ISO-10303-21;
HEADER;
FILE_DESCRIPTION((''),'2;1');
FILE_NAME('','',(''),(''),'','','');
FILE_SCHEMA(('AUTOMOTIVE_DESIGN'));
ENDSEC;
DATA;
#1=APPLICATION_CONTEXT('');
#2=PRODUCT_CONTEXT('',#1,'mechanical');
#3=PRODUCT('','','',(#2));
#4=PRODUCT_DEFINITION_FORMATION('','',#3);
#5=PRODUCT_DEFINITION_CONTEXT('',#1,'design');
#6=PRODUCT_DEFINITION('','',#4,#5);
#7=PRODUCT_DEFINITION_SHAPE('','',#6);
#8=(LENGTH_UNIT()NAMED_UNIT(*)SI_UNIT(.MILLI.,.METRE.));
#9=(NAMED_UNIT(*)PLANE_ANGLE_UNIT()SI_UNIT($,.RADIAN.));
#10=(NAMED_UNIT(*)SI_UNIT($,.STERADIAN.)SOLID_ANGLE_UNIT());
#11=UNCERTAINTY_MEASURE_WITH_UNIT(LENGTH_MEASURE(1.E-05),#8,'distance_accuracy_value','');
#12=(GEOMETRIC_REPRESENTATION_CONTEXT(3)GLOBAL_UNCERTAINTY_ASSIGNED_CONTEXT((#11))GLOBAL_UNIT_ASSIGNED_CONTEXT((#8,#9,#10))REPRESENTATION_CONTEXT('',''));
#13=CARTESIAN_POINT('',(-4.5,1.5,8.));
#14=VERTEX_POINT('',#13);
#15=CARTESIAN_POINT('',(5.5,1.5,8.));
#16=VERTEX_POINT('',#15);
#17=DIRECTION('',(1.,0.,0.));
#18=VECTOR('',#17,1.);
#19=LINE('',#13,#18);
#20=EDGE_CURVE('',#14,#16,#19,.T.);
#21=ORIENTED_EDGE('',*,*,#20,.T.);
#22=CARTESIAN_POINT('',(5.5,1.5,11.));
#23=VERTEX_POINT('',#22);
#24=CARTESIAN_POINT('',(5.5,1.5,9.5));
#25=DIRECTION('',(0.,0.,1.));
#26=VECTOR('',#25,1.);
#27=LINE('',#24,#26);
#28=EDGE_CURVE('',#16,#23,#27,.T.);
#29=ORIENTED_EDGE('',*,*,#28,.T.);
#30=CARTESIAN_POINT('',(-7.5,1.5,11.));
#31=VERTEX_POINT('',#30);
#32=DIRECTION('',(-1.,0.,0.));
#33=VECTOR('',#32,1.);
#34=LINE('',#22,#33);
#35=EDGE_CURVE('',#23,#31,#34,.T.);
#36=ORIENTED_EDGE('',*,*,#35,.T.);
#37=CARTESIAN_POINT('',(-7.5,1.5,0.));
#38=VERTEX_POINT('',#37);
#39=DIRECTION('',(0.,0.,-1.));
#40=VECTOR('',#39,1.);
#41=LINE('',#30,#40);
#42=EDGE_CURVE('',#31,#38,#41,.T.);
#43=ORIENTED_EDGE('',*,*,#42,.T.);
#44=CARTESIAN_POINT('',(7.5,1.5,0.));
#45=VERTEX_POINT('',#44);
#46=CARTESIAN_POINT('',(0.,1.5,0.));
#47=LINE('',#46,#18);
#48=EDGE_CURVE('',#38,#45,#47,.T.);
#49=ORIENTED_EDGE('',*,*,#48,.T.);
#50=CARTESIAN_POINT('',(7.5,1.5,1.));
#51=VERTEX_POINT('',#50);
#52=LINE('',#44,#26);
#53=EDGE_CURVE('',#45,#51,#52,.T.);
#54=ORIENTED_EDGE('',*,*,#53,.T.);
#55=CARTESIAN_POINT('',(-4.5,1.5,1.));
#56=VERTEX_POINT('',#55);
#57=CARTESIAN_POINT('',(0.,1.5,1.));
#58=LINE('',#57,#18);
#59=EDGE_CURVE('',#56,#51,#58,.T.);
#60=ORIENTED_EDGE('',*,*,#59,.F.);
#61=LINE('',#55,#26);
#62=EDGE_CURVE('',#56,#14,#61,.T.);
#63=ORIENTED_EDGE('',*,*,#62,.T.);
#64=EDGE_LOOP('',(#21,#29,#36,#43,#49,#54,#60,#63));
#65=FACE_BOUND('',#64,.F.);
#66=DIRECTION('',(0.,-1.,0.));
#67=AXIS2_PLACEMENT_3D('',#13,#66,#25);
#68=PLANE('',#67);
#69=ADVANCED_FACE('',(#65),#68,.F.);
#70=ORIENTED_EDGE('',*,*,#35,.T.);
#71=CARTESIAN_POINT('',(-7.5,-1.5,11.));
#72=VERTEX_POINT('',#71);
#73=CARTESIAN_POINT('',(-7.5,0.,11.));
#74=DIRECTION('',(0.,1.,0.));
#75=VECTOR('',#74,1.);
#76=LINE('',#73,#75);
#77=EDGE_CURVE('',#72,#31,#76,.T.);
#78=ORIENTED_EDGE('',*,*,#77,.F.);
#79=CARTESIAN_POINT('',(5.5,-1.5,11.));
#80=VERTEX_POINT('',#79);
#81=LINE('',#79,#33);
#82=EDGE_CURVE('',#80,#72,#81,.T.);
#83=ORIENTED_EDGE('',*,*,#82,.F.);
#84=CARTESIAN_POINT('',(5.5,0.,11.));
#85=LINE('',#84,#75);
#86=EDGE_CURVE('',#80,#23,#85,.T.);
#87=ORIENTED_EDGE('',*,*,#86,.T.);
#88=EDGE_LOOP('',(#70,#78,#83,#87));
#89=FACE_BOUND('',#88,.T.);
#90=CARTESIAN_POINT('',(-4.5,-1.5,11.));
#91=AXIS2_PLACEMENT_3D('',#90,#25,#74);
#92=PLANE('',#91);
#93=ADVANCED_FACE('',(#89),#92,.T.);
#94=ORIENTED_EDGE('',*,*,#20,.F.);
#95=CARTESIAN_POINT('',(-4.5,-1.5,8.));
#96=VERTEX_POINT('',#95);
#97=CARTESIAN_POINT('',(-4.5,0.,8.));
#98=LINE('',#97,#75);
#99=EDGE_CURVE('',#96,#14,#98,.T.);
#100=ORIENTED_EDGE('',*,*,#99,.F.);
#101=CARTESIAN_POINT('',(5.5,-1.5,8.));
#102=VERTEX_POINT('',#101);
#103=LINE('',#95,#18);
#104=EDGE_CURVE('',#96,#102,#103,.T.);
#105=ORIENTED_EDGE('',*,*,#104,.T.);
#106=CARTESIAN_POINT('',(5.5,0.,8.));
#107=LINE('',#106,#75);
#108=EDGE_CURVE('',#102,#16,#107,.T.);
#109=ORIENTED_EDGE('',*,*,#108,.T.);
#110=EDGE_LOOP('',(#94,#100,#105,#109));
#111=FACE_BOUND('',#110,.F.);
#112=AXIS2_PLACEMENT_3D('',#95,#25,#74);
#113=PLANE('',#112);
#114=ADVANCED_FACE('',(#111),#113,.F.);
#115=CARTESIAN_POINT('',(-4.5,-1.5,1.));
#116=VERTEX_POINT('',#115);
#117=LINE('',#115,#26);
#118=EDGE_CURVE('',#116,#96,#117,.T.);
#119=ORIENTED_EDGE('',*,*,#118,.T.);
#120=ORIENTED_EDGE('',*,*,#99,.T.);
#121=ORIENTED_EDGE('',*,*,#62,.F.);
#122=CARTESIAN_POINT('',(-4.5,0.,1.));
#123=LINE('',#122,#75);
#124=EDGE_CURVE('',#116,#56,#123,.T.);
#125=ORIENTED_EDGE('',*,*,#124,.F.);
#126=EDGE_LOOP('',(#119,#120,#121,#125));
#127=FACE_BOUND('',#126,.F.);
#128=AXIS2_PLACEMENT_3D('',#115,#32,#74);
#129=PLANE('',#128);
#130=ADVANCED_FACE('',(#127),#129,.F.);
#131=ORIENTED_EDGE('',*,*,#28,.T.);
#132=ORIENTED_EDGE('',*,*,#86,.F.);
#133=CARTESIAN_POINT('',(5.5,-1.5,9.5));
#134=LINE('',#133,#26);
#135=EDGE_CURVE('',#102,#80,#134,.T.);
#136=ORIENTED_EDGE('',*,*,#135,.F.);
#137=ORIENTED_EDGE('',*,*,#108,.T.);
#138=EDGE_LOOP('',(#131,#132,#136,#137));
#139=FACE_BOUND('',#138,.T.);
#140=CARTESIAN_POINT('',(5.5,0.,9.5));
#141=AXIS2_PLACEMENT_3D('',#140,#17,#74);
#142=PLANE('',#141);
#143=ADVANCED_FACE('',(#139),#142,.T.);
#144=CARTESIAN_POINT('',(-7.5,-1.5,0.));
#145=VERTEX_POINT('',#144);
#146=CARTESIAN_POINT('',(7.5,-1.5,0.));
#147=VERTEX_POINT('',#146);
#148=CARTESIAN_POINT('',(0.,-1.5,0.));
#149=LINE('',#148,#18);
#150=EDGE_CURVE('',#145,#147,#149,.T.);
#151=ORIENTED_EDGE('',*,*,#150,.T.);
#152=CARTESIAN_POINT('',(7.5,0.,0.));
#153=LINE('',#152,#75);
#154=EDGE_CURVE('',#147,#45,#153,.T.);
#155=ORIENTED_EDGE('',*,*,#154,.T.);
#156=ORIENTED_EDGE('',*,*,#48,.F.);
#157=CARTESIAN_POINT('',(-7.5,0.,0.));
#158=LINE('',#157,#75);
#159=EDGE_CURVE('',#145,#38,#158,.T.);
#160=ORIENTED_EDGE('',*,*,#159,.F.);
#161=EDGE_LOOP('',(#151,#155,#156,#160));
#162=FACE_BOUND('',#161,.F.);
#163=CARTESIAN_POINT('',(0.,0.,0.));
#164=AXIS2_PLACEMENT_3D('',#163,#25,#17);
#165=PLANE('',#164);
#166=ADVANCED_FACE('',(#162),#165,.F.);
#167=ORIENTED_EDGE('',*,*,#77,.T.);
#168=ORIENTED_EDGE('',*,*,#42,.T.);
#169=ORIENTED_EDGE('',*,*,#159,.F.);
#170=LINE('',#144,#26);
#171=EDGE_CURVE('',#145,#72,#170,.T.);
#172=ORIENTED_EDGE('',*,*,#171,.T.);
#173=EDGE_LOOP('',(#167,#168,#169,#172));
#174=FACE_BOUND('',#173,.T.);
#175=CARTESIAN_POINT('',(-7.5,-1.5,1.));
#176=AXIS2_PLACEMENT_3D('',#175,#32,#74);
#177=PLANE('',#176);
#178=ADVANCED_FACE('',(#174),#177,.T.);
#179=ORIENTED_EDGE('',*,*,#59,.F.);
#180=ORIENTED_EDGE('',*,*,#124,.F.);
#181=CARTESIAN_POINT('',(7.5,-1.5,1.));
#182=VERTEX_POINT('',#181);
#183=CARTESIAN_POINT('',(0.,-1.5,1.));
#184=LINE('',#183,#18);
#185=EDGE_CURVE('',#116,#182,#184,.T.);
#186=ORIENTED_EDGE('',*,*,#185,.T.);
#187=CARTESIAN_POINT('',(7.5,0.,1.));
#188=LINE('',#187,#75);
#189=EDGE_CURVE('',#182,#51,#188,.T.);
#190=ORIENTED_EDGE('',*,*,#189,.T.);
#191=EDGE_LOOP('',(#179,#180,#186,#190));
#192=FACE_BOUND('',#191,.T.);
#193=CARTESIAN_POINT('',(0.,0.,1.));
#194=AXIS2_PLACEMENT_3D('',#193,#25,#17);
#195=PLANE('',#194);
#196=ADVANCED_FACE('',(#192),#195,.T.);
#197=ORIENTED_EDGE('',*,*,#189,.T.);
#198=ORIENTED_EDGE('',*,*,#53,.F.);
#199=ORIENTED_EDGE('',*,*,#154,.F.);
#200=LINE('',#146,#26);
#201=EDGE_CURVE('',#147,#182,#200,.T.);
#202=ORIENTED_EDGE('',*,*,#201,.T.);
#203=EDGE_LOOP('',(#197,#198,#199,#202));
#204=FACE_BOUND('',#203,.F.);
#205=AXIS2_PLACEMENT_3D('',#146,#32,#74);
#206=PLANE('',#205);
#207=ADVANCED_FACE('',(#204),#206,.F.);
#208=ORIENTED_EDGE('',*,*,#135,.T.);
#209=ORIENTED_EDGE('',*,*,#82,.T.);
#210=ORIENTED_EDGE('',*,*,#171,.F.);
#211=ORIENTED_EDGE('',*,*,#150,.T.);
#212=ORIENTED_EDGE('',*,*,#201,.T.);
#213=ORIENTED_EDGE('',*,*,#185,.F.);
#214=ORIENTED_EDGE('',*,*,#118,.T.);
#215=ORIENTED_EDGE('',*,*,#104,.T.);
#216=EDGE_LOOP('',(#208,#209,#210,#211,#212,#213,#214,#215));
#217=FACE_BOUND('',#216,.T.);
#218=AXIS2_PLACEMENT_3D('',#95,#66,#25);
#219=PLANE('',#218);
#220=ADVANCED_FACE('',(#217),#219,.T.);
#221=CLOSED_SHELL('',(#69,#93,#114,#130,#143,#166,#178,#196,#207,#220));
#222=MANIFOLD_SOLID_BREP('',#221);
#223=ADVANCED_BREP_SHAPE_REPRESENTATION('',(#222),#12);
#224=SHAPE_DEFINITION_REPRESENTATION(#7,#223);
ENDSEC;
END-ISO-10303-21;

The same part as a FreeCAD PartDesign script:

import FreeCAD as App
import Part
import Sketcher

V = App.Vector
Q = App.Units.Quantity


def add_polygon(sketch, points):
    """Adds a closed chain of lines whose ends are joined by coincident constraints."""
    first, n = sketch.GeometryCount, len(points)
    for a, b in zip(points, points[1:] + points[:1]):
        sketch.addGeometry(Part.LineSegment(App.Vector(*a, 0), App.Vector(*b, 0)), False)
    for i in range(n):
        sketch.addConstraint(Sketcher.Constraint("Coincident", first + i, 2, first + (i + 1) % n, 1))

doc = App.newDocument("Part")
body = doc.addObject("PartDesign::Body", "Body")

sketch1 = body.newObject("Sketcher::SketchObject", "Sketch")
sketch1.AttachmentSupport = (doc.getObject("XY_Plane"), [""])
sketch1.MapMode = "FlatFace"
add_polygon(sketch1, [(-7.5, 1.5), (-7.5, -1.5), (7.5, -1.5), (7.5, 1.5)])
sketch1.addConstraint(Sketcher.Constraint("Vertical", 0))
sketch1.addConstraint(Sketcher.Constraint("Horizontal", 1))
sketch1.addConstraint(Sketcher.Constraint("Vertical", 2))
sketch1.addConstraint(Sketcher.Constraint("Horizontal", 3))
sketch1.addConstraint(Sketcher.Constraint("Symmetric", 0, 2, 2, 2, -1, 1))
sketch1.addConstraint(Sketcher.Constraint("DistanceX", 1, 1, 1, 2, Q("15 mm")))
sketch1.addConstraint(Sketcher.Constraint("DistanceY", 0, 2, 0, 1, Q("3 mm")))
pad1 = body.newObject("PartDesign::Pad", "Pad")
pad1.Profile = sketch1
pad1.Length = 1

sketch2 = body.newObject("Sketcher::SketchObject", "Sketch001")
sketch2.AttachmentSupport = (doc.getObject("XY_Plane"), [""])
sketch2.MapMode = "FlatFace"
sketch2.AttachmentOffset = App.Placement(V(0, 0, 1), App.Rotation())
add_polygon(sketch2, [(-7.5, 1.5), (-7.5, -1.5), (-4.5, -1.5), (-4.5, 1.5)])
sketch2.addConstraint(Sketcher.Constraint("Vertical", 0))
sketch2.addConstraint(Sketcher.Constraint("Horizontal", 1))
sketch2.addConstraint(Sketcher.Constraint("Vertical", 2))
sketch2.addConstraint(Sketcher.Constraint("Horizontal", 3))
sketch2.addConstraint(Sketcher.Constraint("Equal", 3, 0))
sketch2.addConstraint(Sketcher.Constraint("DistanceX", 1, 1, 1, 2, Q("3 mm")))
sketch2.addConstraint(Sketcher.Constraint("DistanceX", 0, 2, -1, 1, Q("7.5 mm")))
sketch2.addConstraint(Sketcher.Constraint("DistanceY", 0, 2, -1, 1, Q("1.5 mm")))
pad2 = body.newObject("PartDesign::Pad", "Pad001")
pad2.Profile = sketch2
pad2.Length = 10

sketch3 = body.newObject("Sketcher::SketchObject", "Sketch002")
sketch3.AttachmentSupport = (doc.getObject("YZ_Plane"), [""])
sketch3.MapMode = "FlatFace"
sketch3.AttachmentOffset = App.Placement(V(0, 0, -4.5), App.Rotation())
add_polygon(sketch3, [(-1.5, 11), (-1.5, 8), (1.5, 8), (1.5, 11)])
sketch3.addConstraint(Sketcher.Constraint("Vertical", 0))
sketch3.addConstraint(Sketcher.Constraint("Horizontal", 1))
sketch3.addConstraint(Sketcher.Constraint("Vertical", 2))
sketch3.addConstraint(Sketcher.Constraint("Horizontal", 3))
sketch3.addConstraint(Sketcher.Constraint("Equal", 3, 0))
sketch3.addConstraint(Sketcher.Constraint("DistanceX", 1, 1, 1, 2, Q("3 mm")))
sketch3.addConstraint(Sketcher.Constraint("DistanceY", -1, 1, 0, 2, Q("8 mm")))
sketch3.addConstraint(Sketcher.Constraint("DistanceX", 0, 2, -1, 1, Q("1.5 mm")))
pad3 = body.newObject("PartDesign::Pad", "Pad002")
pad3.Profile = sketch3
pad3.Length = 10

doc.recompute()
